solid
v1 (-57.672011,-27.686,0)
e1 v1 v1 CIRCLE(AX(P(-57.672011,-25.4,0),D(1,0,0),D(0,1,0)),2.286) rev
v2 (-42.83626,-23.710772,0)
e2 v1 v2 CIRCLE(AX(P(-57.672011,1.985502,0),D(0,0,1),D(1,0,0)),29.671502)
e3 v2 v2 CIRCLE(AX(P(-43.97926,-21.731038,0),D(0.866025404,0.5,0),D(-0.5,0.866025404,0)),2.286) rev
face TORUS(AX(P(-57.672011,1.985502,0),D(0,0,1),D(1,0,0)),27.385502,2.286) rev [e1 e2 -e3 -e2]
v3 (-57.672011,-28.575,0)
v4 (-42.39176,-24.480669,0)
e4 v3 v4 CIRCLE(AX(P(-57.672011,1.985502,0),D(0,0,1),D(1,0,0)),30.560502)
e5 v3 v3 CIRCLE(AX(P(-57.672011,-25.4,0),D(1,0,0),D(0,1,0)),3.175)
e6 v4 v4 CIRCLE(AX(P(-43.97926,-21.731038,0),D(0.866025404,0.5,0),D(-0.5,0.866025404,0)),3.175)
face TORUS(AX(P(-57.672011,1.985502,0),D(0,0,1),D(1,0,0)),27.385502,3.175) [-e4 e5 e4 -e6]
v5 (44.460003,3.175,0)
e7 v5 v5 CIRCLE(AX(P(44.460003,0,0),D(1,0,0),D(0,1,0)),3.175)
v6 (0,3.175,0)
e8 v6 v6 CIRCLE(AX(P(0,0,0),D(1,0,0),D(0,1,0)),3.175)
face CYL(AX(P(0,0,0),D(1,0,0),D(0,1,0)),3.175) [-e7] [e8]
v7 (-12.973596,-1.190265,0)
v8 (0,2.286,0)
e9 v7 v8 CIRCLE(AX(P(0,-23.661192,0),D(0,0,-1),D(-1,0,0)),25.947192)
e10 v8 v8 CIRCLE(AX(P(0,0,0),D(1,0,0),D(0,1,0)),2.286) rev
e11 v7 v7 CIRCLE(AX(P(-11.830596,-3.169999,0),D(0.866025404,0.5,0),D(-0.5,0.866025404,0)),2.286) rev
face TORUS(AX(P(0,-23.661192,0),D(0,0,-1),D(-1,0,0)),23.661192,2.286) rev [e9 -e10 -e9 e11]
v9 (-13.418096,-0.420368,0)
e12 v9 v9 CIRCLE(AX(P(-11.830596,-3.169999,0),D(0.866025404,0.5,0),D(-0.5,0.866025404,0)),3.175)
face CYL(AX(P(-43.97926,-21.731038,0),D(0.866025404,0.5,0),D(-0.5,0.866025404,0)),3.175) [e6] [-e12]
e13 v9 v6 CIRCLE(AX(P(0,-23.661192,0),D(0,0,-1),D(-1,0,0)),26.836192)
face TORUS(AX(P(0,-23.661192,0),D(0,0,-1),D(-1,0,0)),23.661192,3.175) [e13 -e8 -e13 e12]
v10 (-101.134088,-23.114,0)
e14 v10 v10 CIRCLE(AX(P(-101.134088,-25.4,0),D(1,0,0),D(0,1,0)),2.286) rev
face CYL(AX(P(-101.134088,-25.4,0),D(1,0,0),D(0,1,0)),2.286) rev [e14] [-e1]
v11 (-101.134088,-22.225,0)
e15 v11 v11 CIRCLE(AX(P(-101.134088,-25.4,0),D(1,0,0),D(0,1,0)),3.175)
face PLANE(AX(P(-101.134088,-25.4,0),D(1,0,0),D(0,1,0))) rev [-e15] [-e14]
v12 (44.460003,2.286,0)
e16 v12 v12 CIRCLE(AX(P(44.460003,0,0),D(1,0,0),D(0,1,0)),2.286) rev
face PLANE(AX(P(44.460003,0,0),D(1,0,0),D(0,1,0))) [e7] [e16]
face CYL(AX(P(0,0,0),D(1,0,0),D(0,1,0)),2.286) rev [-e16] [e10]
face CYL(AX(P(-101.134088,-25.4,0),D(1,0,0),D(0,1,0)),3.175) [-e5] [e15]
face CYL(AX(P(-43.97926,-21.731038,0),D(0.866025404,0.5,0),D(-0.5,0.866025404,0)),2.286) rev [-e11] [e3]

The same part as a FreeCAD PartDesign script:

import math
import FreeCAD as App
import Part
import Sketcher

V = App.Vector
Q = App.Units.Quantity

doc = App.newDocument("Part")
body = doc.addObject("PartDesign::Body", "Body")

# Sketch on YZ plane
sketch1 = doc.addObject("Sketcher::SketchObject", "Sketch")
body.addObject(sketch1)
sketch1.AttachmentSupport = (doc.YZ_Plane, [""])
sketch1.MapMode = "FlatFace"
sketch1.AttachmentOffset = App.Placement(V(0, 0, 44.460003), App.Rotation())
sketch1.addGeometry(Part.Circle(V(0, 0, 0), V(0, 0, 1), 3.2), False)
sketch1.addGeometry(Part.Circle(V(0, 0, 0), V(0, 0, 1), 2.3), False)
sketch1.addConstraint(Sketcher.Constraint("Coincident", 0, 3, -1, 1))
sketch1.addConstraint(Sketcher.Constraint("Coincident", 1, 3, -1, 1))
sketch1.addConstraint(Sketcher.Constraint("Diameter", 0, Q("0.25 in")))
sketch1.addConstraint(Sketcher.Constraint("Diameter", 1, Q("0.18 in")))

# Sketch on XY plane
sketch2 = doc.addObject("Sketcher::SketchObject", "Sketch001")
body.addObject(sketch2)
sketch2.AttachmentSupport = (doc.XY_Plane, [""])
sketch2.MapMode = "FlatFace"
sketch2.addGeometry(Part.LineSegment(V(44, 0, 0), V(0, 0, 0)), False)
sketch2.addGeometry(Part.ArcOfCircle(Part.Circle(V(0, -24, 0), V(0, 0, 1), 24), math.radians(90), math.radians(120)), False)
sketch2.addGeometry(Part.LineSegment(V(-12, -3, 0), V(-44, -22, 0)), False)
sketch2.addGeometry(Part.ArcOfCircle(Part.Circle(V(-58, 2, 0), V(0, 0, 1), 27), math.radians(-90), math.radians(-60)), False)
sketch2.addGeometry(Part.LineSegment(V(-58, -25, 0), V(-101, -25, 0)), False)
sketch2.addConstraint(Sketcher.Constraint("Tangent", 0, 2, 1, 1))
sketch2.addConstraint(Sketcher.Constraint("Tangent", 1, 2, 2, 1))
sketch2.addConstraint(Sketcher.Constraint("Tangent", 2, 2, 3, 2))
sketch2.addConstraint(Sketcher.Constraint("Tangent", 3, 1, 4, 1))
sketch2.addConstraint(Sketcher.Constraint("Horizontal", 0))
sketch2.addConstraint(Sketcher.Constraint("Horizontal", 4))
sketch2.addConstraint(Sketcher.Constraint("Coincident", 0, 2, -1, 1))
sketch2.addConstraint(Sketcher.Constraint("DistanceY", 3, 1, -1, 1, Q("1 in")))
sketch2.addConstraint(Sketcher.Constraint("Angle", 2, Q("-150 deg")))
sketch2.addConstraint(Sketcher.Constraint("Radius", 1, 23.661192))
sketch2.addConstraint(Sketcher.Constraint("Radius", 3, 27.385502))
sketch2.addConstraint(Sketcher.Constraint("DistanceX", 1, 2, 0, 1, 56.290599))
sketch2.addConstraint(Sketcher.Constraint("DistanceX", 4, 2, 4, 1, 43.462077))
doc.recompute()

additivepipe = doc.addObject("PartDesign::AdditivePipe", "AdditivePipe")
body.addObject(additivepipe)
additivepipe.Profile = sketch1
additivepipe.Spine = (sketch2, ["Edge1", "Edge2", "Edge3", "Edge4", "Edge5"])

doc.recompute()
